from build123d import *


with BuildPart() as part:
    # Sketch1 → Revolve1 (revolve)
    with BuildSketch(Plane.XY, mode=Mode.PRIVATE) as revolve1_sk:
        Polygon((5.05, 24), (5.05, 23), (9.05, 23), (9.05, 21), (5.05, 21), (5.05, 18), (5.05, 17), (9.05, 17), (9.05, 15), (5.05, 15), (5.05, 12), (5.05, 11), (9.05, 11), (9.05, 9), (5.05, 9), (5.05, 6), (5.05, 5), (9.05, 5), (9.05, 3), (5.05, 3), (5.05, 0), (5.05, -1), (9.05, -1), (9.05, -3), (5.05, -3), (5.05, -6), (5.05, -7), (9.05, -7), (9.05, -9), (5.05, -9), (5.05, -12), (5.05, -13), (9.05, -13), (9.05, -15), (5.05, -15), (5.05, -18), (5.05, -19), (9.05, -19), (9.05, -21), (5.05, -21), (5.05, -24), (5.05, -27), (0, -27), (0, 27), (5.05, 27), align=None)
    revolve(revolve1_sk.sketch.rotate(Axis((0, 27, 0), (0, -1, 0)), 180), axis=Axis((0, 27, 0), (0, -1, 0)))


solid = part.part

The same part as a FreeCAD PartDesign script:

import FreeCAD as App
import Part
import Sketcher


def add_polygon(sketch, points):
    """Adds a closed chain of lines whose ends are joined by coincident constraints."""
    first, n = sketch.GeometryCount, len(points)
    for a, b in zip(points, points[1:] + points[:1]):
        sketch.addGeometry(Part.LineSegment(App.Vector(*a, 0), App.Vector(*b, 0)), False)
    for i in range(n):
        sketch.addConstraint(Sketcher.Constraint("Coincident", first + i, 2, first + (i + 1) % n, 1))

doc = App.newDocument("Part")
body = doc.addObject("PartDesign::Body", "Body")

# Sketch on XY plane
sketch1 = doc.addObject("Sketcher::SketchObject", "Sketch")
body.addObject(sketch1)
sketch1.AttachmentSupport = (doc.XY_Plane, [""])
sketch1.MapMode = "FlatFace"
add_polygon(sketch1, [(5, 23), (5, 27), (0, 27), (0, -27), (5, -27), (5, -21), (9.1, -21), (9.1, -19), (5, -19), (5, -15), (9.1, -15), (9.1, -13), (5, -13), (5, -9), (9.1, -9), (9.1, -7), (5, -7), (5, -3), (9.1, -3), (9.1, -1), (5, -1), (5, 3), (9.1, 3), (9.1, 5), (5, 5), (5, 9), (9.1, 9), (9.1, 11), (5, 11), (5, 15), (9.1, 15), (9.1, 17), (5, 17), (5, 21), (9.1, 21), (9.1, 23)])  # lines 0-35
sketch1.addConstraint([
    Sketcher.Constraint("Vertical", 0),
    Sketcher.Constraint("Horizontal", 1),
    Sketcher.Constraint("Vertical", 2),
    Sketcher.Constraint("Horizontal", 3),
    Sketcher.Constraint("Vertical", 4),
    Sketcher.Constraint("Horizontal", 5),
    Sketcher.Constraint("Vertical", 6),
    Sketcher.Constraint("Horizontal", 7),
    Sketcher.Constraint("Vertical", 8),
    Sketcher.Constraint("Horizontal", 9),
    Sketcher.Constraint("Vertical", 10),
    Sketcher.Constraint("Horizontal", 11),
    Sketcher.Constraint("Vertical", 12),
    Sketcher.Constraint("Horizontal", 13),
    Sketcher.Constraint("Vertical", 14),
    Sketcher.Constraint("Horizontal", 15),
    Sketcher.Constraint("Vertical", 16),
    Sketcher.Constraint("Horizontal", 17),
    Sketcher.Constraint("Vertical", 18),
    Sketcher.Constraint("Horizontal", 19),
    Sketcher.Constraint("Vertical", 20),
    Sketcher.Constraint("Horizontal", 21),
    Sketcher.Constraint("Vertical", 22),
    Sketcher.Constraint("Horizontal", 23),
    Sketcher.Constraint("Vertical", 24),
    Sketcher.Constraint("Horizontal", 25),
    Sketcher.Constraint("Vertical", 26),
    Sketcher.Constraint("Horizontal", 27),
    Sketcher.Constraint("Vertical", 28),
    Sketcher.Constraint("Horizontal", 29),
    Sketcher.Constraint("Vertical", 30),
    Sketcher.Constraint("Horizontal", 31),
    Sketcher.Constraint("Vertical", 32),
    Sketcher.Constraint("Horizontal", 33),
    Sketcher.Constraint("Vertical", 34),
    Sketcher.Constraint("Horizontal", 35),
    Sketcher.Constraint("Symmetric", 1, 2, 2, 2, -1, 1),
    Sketcher.Constraint("Symmetric", 16, 2, 20, 2, -1),
    Sketcher.Constraint("Symmetric", 12, 2, 24, 2, -1),
    Sketcher.Constraint("Symmetric", 8, 2, 28, 2, -1),
    Sketcher.Constraint("Symmetric", 4, 2, 32, 2, -1),
    Sketcher.Constraint("Vertical", 0, 2, 3, 2),
    Sketcher.Constraint("Vertical", 4, 2, 7, 2),
    Sketcher.Constraint("Vertical", 6, 2, 9, 2),
    Sketcher.Constraint("Vertical", 8, 2, 11, 2),
    Sketcher.Constraint("Vertical", 10, 2, 13, 2),
    Sketcher.Constraint("Vertical", 12, 2, 15, 2),
    Sketcher.Constraint("Vertical", 14, 2, 17, 2),
    Sketcher.Constraint("Vertical", 18, 2, 21, 2),
    Sketcher.Constraint("Vertical", 22, 2, 25, 2),
    Sketcher.Constraint("Vertical", 26, 2, 29, 2),
    Sketcher.Constraint("Vertical", 30, 2, 33, 2),
    Sketcher.Constraint("Equal", 35, 0),
    Sketcher.Constraint("Equal", 0, 8),
    Sketcher.Constraint("Equal", 6, 10),
    Sketcher.Constraint("Equal", 8, 12),
    Sketcher.Constraint("Equal", 10, 14),
    Sketcher.Constraint("Equal", 12, 16),
    Sketcher.Constraint("Equal", 14, 18),
    Sketcher.Constraint("Equal", 16, 20),
    Sketcher.Constraint("Equal", 18, 22),
    Sketcher.Constraint("Equal", 22, 26),
    Sketcher.Constraint("Equal", 26, 30),
    Sketcher.Constraint("Equal", 30, 34),
    Sketcher.Constraint("DistanceX", 5, 1, 5, 2, 4.0),
    Sketcher.Constraint("DistanceY", 2, 2, 2, 1, 54.0),
    Sketcher.Constraint("DistanceX", 1, 2, 1, 1, 5.05),
])
revolution = doc.addObject("PartDesign::Revolution", "Revolution")
body.addObject(revolution)
revolution.Profile = sketch1
revolution.ReferenceAxis = (sketch1, ["V_Axis"])
revolution.Angle = 360

doc.recompute()
